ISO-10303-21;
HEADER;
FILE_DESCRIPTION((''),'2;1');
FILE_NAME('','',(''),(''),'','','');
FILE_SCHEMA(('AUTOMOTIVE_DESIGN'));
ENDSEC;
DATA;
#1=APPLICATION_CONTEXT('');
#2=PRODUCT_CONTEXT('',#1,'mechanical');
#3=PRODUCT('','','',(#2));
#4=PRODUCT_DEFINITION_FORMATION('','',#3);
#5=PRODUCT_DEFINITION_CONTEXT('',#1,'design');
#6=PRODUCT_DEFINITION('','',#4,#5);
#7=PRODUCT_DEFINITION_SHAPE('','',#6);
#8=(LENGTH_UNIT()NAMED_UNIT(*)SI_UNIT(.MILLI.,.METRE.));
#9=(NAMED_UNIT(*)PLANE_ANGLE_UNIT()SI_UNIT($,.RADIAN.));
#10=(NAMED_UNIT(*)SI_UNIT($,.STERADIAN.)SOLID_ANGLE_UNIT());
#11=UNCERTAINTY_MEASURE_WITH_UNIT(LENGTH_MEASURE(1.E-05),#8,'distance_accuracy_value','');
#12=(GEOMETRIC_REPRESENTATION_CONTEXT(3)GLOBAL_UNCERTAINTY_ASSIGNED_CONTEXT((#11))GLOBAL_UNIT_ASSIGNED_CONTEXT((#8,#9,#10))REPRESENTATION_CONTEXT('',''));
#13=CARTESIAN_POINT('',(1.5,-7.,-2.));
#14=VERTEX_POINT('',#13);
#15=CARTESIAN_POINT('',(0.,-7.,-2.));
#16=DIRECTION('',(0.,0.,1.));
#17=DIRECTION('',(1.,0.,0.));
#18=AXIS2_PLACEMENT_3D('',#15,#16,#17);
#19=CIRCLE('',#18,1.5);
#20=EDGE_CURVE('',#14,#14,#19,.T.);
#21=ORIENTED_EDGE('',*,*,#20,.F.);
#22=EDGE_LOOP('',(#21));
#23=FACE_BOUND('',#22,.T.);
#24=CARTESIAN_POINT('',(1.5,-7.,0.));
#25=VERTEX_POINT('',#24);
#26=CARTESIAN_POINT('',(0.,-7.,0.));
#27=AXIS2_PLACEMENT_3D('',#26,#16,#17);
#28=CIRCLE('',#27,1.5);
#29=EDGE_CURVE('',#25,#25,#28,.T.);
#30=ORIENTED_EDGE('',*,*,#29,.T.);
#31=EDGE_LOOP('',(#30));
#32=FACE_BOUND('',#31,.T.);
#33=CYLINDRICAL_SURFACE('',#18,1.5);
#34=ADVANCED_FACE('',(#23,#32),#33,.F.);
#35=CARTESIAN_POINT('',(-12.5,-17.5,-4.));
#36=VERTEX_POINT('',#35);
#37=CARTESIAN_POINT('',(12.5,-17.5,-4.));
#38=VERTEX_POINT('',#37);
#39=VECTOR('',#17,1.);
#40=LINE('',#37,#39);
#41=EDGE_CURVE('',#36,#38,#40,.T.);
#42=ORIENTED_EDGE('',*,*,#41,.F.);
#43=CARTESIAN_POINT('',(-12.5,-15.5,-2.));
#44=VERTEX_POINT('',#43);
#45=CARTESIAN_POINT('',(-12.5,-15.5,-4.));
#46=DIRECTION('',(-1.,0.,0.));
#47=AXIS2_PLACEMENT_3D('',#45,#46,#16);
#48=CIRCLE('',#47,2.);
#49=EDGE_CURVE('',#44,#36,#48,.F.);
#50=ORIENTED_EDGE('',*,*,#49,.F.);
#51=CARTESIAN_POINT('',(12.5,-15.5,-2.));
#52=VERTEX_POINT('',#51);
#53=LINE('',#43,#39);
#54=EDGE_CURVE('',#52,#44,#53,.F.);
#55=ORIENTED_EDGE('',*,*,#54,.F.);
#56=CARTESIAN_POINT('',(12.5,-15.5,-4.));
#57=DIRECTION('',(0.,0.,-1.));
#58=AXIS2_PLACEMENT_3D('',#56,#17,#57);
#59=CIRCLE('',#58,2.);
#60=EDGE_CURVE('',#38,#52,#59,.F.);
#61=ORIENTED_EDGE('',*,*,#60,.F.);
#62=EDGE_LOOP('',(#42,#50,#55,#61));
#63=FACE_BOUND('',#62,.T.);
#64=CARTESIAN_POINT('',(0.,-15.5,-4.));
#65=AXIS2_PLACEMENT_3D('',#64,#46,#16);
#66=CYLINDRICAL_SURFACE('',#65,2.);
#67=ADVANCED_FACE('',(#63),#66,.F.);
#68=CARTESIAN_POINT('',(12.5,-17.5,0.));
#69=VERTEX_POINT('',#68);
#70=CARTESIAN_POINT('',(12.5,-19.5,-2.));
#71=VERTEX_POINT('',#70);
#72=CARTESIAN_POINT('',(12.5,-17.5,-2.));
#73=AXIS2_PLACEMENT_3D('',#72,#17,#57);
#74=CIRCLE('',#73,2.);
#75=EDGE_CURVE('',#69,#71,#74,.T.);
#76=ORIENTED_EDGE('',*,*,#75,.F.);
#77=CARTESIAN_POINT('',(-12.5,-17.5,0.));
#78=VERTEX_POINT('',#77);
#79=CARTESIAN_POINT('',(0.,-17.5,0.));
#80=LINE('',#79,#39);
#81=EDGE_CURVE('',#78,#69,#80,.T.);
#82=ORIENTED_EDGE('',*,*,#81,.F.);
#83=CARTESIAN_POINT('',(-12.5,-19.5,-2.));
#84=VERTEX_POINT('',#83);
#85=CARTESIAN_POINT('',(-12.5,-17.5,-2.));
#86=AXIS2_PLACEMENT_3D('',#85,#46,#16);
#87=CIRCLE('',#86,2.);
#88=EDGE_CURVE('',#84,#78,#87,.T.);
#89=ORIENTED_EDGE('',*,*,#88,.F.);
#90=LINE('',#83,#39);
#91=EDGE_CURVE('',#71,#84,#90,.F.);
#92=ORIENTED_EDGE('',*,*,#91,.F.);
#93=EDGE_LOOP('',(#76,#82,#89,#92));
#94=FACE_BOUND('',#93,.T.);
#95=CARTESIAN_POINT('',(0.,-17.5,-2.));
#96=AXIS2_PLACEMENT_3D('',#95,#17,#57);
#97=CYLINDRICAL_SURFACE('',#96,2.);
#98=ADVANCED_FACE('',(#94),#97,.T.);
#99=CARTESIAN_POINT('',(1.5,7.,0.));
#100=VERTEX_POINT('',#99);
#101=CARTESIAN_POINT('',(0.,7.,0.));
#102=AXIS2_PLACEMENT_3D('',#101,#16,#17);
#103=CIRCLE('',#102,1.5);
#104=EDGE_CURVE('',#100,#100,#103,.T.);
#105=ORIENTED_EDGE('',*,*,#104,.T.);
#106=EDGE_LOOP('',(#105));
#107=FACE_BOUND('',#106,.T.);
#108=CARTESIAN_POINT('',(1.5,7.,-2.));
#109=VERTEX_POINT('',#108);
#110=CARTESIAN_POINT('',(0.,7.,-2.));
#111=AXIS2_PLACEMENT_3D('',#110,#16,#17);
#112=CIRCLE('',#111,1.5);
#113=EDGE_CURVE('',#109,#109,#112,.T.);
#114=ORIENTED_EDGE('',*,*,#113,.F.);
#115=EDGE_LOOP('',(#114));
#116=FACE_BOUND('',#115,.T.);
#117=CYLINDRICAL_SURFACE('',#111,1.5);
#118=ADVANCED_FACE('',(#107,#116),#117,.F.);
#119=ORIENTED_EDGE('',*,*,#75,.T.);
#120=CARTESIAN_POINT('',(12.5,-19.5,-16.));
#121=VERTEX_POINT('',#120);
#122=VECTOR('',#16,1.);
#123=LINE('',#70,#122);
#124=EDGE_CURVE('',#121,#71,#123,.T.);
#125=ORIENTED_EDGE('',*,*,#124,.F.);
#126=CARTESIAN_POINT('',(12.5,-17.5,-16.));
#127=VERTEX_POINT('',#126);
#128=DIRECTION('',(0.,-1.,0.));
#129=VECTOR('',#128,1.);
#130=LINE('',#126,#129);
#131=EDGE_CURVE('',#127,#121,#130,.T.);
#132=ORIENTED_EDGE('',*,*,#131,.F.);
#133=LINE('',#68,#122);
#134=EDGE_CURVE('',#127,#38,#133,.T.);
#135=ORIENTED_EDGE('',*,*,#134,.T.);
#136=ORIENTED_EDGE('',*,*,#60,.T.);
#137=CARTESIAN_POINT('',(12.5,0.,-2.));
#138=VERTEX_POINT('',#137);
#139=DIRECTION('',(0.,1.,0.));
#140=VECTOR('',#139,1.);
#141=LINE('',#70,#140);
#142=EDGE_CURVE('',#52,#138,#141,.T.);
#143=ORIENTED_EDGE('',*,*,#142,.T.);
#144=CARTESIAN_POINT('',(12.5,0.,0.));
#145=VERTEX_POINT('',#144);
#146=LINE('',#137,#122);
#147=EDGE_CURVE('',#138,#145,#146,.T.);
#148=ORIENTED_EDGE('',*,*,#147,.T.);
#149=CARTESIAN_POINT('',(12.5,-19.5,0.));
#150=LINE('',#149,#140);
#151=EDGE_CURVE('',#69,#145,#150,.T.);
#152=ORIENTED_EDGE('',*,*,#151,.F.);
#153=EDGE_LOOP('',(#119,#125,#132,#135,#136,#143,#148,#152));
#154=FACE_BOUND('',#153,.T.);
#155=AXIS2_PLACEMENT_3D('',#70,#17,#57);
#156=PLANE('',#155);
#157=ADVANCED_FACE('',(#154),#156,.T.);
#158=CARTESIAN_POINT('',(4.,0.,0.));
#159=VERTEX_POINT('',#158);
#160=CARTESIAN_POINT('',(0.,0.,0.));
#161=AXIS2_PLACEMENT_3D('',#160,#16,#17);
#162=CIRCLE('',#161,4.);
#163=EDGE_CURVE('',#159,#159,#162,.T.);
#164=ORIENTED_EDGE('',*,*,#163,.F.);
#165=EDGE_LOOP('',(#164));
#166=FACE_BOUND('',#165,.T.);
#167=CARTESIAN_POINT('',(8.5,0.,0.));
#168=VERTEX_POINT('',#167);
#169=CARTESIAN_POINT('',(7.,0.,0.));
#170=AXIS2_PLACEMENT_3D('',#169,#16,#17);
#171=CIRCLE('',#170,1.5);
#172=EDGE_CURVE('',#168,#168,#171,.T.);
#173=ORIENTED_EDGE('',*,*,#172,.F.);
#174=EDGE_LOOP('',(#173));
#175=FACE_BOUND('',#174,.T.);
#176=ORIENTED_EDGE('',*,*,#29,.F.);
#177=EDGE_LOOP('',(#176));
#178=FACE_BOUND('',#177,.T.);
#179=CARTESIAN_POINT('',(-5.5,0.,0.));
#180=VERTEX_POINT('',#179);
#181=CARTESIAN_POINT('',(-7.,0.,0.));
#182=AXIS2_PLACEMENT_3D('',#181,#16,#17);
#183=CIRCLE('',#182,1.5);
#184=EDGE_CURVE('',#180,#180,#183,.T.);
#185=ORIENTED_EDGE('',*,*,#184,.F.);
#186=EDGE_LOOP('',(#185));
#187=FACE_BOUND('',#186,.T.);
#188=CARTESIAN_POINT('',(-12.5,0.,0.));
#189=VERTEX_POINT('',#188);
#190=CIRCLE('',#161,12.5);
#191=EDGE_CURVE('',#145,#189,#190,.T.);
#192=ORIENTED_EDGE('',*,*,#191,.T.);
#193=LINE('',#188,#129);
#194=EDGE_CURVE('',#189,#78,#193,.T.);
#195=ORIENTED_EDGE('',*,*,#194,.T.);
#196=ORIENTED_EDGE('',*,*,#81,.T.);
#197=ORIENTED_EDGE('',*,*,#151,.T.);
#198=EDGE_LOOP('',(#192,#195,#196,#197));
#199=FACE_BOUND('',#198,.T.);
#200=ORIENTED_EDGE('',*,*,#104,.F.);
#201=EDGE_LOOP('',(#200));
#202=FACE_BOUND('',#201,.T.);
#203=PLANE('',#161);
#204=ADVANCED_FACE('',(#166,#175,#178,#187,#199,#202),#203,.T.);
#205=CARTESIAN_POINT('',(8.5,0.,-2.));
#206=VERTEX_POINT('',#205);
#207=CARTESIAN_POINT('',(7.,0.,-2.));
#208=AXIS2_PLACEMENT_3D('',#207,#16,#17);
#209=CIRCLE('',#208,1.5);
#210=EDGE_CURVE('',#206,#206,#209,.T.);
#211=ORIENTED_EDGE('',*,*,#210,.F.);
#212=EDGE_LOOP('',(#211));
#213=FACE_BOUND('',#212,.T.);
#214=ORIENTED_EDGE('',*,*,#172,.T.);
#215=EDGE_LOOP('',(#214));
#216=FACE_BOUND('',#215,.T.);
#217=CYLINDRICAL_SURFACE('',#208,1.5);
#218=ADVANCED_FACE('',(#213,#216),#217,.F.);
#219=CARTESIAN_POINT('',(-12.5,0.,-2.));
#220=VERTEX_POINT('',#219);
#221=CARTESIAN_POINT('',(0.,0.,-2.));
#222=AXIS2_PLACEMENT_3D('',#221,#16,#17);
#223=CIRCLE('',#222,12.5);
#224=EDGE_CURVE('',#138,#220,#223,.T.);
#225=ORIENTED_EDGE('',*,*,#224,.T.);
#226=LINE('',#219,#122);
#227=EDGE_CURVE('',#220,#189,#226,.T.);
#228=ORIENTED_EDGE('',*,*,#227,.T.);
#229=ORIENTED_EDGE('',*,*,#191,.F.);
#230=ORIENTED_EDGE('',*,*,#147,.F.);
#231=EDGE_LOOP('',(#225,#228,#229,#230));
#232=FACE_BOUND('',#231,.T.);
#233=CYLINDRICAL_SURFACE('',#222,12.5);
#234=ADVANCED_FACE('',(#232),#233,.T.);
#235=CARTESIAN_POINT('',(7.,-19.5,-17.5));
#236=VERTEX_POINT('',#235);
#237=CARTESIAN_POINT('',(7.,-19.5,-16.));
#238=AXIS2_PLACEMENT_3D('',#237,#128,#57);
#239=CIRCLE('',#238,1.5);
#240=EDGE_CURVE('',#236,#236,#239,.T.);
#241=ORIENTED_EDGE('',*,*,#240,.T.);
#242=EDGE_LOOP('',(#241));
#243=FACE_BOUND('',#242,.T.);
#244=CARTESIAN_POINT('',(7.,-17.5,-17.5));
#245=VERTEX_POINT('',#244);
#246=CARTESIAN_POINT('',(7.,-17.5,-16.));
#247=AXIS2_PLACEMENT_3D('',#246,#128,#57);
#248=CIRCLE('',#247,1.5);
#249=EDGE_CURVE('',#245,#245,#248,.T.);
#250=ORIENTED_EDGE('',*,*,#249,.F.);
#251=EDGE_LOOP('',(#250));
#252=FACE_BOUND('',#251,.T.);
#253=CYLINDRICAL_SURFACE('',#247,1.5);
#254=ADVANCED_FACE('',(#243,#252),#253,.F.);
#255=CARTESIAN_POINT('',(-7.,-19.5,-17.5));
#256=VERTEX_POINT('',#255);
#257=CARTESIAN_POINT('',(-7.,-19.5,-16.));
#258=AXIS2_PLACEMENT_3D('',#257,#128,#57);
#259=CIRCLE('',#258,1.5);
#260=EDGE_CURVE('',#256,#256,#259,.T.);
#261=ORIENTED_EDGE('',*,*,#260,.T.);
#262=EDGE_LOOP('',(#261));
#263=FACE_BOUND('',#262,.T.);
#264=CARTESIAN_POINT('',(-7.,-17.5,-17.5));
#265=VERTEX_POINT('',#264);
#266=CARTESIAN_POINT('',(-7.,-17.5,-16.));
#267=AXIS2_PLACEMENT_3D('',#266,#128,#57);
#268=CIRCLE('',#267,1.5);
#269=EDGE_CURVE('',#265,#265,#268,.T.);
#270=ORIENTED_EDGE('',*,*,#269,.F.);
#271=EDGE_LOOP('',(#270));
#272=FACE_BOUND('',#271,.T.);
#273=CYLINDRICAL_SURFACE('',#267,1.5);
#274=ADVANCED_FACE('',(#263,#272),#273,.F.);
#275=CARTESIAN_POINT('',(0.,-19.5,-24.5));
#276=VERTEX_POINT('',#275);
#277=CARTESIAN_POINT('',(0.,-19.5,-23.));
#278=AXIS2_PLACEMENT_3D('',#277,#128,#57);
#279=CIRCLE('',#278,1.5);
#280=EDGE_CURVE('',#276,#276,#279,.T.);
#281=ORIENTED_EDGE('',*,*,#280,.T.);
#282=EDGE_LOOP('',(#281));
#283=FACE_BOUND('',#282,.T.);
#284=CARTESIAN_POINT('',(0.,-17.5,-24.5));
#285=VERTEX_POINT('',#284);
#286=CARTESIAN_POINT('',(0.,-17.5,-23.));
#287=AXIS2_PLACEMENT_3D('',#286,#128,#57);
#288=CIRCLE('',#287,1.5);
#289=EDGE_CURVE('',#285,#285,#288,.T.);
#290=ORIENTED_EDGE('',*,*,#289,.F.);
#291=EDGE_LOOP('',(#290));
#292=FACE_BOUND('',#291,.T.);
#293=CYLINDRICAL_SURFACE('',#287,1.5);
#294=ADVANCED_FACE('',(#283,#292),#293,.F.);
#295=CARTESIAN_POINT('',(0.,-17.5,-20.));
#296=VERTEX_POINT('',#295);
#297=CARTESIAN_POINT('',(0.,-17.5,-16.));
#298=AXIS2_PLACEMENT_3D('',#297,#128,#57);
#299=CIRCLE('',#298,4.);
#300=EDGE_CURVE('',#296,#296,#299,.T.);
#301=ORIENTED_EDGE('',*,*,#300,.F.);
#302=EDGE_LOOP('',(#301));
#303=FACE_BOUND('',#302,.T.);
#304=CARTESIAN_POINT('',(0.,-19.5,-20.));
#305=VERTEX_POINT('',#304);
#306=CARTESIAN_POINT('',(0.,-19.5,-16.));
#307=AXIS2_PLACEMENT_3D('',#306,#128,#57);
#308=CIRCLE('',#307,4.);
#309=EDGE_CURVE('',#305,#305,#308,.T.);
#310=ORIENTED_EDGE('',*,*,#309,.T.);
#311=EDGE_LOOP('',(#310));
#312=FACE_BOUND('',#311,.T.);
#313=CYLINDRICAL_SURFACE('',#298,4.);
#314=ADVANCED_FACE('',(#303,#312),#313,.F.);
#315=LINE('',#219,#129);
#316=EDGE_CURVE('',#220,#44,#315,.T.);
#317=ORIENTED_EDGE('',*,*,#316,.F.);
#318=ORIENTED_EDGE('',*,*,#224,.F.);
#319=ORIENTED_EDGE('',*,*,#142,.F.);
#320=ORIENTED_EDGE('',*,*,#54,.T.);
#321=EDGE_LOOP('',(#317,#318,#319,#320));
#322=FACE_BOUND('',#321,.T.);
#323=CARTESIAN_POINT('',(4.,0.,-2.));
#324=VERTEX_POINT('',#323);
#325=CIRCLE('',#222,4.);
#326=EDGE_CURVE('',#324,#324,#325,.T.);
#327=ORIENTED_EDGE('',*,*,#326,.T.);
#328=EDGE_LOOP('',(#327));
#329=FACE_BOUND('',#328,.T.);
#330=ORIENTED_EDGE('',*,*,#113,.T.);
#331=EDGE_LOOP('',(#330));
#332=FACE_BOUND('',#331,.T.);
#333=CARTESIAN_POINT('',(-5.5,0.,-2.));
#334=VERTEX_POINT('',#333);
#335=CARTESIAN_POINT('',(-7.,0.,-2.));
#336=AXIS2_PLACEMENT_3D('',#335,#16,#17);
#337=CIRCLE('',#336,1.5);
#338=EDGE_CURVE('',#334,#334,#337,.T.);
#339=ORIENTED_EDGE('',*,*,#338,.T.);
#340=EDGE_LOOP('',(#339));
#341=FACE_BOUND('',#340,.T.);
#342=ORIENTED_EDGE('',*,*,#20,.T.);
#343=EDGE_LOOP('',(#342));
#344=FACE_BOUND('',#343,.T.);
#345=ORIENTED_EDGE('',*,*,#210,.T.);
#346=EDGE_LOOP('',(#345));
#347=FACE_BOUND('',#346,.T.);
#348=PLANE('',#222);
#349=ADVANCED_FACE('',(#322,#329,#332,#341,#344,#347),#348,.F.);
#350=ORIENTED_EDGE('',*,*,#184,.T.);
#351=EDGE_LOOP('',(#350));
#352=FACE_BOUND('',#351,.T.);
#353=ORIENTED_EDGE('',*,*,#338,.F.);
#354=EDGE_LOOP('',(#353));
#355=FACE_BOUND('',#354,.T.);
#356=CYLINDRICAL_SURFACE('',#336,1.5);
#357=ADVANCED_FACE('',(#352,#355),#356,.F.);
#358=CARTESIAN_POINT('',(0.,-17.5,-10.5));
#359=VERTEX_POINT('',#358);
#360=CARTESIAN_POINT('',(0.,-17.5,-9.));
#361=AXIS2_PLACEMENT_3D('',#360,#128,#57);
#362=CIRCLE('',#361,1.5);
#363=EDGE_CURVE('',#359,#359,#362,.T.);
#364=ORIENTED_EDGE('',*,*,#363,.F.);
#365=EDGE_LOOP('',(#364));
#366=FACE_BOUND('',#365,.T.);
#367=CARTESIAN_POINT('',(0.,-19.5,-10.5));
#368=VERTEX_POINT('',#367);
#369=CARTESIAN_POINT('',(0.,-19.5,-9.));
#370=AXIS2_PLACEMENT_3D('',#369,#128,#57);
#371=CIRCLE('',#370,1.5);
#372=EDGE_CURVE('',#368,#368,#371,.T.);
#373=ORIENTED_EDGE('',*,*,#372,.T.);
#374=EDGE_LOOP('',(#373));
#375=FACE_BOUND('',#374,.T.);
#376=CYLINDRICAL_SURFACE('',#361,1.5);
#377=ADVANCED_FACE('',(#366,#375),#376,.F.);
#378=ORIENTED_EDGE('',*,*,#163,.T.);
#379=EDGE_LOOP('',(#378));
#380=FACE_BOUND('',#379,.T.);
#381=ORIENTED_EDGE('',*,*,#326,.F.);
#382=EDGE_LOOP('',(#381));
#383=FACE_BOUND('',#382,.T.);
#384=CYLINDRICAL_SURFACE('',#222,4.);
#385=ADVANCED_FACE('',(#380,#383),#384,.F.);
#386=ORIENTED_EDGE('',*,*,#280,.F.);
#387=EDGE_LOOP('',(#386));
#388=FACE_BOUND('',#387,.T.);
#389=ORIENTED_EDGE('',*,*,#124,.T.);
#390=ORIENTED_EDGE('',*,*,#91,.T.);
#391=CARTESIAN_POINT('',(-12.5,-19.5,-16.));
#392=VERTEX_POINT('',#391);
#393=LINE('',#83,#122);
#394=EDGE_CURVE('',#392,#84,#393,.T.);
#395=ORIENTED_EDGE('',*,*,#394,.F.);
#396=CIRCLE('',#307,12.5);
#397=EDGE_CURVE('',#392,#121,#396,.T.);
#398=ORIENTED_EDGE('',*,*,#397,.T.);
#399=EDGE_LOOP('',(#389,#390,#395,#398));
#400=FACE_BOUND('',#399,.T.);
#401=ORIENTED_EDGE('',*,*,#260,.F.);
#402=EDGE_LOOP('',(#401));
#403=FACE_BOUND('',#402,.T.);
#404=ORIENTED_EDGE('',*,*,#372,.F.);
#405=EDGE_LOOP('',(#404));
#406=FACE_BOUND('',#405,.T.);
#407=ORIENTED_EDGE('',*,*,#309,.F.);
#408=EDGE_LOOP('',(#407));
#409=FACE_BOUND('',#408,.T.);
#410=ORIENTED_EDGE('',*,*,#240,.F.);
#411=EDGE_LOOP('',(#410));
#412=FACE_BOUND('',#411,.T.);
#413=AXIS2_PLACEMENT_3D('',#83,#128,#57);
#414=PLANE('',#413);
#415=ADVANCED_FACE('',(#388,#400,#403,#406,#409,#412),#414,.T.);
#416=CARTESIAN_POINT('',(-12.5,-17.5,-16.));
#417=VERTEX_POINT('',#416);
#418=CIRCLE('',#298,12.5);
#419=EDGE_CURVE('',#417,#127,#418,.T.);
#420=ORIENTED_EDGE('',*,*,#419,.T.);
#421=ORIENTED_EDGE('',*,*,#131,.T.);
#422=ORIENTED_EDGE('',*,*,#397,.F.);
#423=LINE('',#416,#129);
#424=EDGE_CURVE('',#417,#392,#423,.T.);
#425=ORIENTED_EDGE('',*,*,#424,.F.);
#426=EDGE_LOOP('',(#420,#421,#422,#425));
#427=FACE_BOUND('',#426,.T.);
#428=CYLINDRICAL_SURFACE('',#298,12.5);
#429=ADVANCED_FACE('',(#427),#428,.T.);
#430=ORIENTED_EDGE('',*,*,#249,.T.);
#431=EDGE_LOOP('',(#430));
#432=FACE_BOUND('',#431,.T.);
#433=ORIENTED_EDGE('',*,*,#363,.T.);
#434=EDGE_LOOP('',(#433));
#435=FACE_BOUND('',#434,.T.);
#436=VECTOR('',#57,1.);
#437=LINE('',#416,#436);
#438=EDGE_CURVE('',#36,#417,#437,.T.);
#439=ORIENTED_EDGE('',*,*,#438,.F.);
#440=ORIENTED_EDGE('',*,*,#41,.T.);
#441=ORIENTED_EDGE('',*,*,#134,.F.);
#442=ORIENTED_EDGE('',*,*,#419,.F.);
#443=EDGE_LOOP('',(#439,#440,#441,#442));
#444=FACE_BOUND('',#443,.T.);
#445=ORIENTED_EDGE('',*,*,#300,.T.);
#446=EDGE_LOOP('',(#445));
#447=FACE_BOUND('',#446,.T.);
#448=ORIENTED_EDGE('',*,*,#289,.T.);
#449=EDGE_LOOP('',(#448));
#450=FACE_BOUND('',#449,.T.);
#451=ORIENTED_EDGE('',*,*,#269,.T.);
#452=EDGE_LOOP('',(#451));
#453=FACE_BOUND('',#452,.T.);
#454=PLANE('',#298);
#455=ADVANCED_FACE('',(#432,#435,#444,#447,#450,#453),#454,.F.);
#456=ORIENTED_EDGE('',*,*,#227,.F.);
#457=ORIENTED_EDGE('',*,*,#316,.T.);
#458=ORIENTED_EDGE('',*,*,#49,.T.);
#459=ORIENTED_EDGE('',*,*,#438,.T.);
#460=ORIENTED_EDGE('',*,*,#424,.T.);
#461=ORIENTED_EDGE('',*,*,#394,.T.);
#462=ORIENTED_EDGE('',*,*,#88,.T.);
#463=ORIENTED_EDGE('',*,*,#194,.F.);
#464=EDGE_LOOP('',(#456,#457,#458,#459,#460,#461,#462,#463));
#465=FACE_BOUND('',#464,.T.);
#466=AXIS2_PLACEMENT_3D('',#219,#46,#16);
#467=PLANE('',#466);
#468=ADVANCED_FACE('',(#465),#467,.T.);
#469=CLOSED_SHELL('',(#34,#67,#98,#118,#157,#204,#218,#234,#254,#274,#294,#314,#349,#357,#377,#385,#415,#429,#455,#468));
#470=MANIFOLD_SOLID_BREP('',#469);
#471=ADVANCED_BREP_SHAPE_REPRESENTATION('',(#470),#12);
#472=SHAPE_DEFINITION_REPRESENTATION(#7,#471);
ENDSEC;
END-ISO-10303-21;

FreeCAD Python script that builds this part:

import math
import FreeCAD as App
import Part
import Sketcher
Q = App.Units.Quantity


def edges_at(feature, points):
    """Names of the edges that pass closest to the given points."""
    edges = feature.Shape.Edges
    near = lambda p: min(range(len(edges)), key=lambda i: edges[i].distToShape(Part.Vertex(*p))[0])
    return sorted({f"Edge{near(p) + 1}" for p in points})

doc = App.newDocument("Part")
body = doc.addObject("PartDesign::Body", "Body")

# Sketch on XY plane
sketch1 = body.newObject("Sketcher::SketchObject", "Sketch")
sketch1.AttachmentSupport = (doc.getObject("XY_Plane"), [""])
sketch1.MapMode = "FlatFace"
sketch1.addGeometry([
    Part.LineSegment(App.Vector(-12.5, 0, 0), App.Vector(-12.5, -19.5, 0)),  # 0
    Part.LineSegment(App.Vector(-12.5, -19.5, 0), App.Vector(12.5, -19.5, 0)),  # 1
    Part.LineSegment(App.Vector(12.5, -19.5, 0), App.Vector(12.5, 0, 0)),  # 2
    Part.ArcOfCircle(Part.Circle(App.Vector(0, 0, 0), App.Vector(0, 0, 1), 12.5), math.radians(0), math.radians(180)),  # 3
    Part.Circle(App.Vector(0, -7, 0), App.Vector(0, 0, 1), 1.5),  # 4
    Part.Circle(App.Vector(-7, 0, 0), App.Vector(0, 0, 1), 1.5),  # 5
    Part.Circle(App.Vector(0, 0, 0), App.Vector(0, 0, 1), 4),  # 6
    Part.Circle(App.Vector(7, 0, 0), App.Vector(0, 0, 1), 1.5),  # 7
    Part.Circle(App.Vector(0, 7, 0), App.Vector(0, 0, 1), 1.5),  # 8
], False)
sketch1.addConstraint([
    Sketcher.Constraint("Coincident", 0, 2, 1, 1),
    Sketcher.Constraint("Coincident", 1, 2, 2, 1),
    Sketcher.Constraint("Tangent", 2, 2, 3, 1),
    Sketcher.Constraint("Tangent", 3, 2, 0, 1),
    Sketcher.Constraint("Vertical", 0),
    Sketcher.Constraint("Horizontal", 1),
    Sketcher.Constraint("Vertical", 2),
    Sketcher.Constraint("Coincident", 3, 3, -1, 1),
    Sketcher.Constraint("Coincident", 6, 3, -1, 1),
    Sketcher.Constraint("Equal", 4, 5),
    Sketcher.Constraint("Equal", 5, 7),
    Sketcher.Constraint("Equal", 7, 8),
    Sketcher.Constraint("Symmetric", 5, 3, 7, 3, -1, 1),
    Sketcher.Constraint("Symmetric", 4, 3, 8, 3, -1, 1),
    Sketcher.Constraint("PointOnObject", 4, 3, -2),
    Sketcher.Constraint("PointOnObject", 5, 3, -1),
    Sketcher.Constraint("Diameter", 4, Q("3 mm")),
    Sketcher.Constraint("Diameter", 6, Q("8 mm")),
    Sketcher.Constraint("Radius", 3, Q("12.5 mm")),
    Sketcher.Constraint("DistanceY", 0, 2, 0, 1, Q("19.5 mm")),
    Sketcher.Constraint("DistanceY", 4, 3, -1, 1, Q("7 mm")),
    Sketcher.Constraint("DistanceX", 5, 3, -1, 1, Q("7 mm")),
])
pad1 = body.newObject("PartDesign::Pad", "Pad")
pad1.Profile = sketch1
pad1.Length = 2
pad1.Reversed = True

# Sketch on XZ plane
sketch2 = body.newObject("Sketcher::SketchObject", "Sketch001")
sketch2.AttachmentSupport = (doc.getObject("XZ_Plane"), [""])
sketch2.MapMode = "FlatFace"
sketch2.AttachmentOffset = App.Placement(App.Vector(0, 0, 19.5), App.Rotation())
sketch2.addGeometry([
    Part.LineSegment(App.Vector(-12.5, 0, 0), App.Vector(-12.5, -16, 0)),  # 0
    Part.ArcOfCircle(Part.Circle(App.Vector(0, -16, 0), App.Vector(0, 0, 1), 12.5), math.radians(180), math.radians(360)),  # 1
    Part.LineSegment(App.Vector(12.5, -16, 0), App.Vector(12.5, 0, 0)),  # 2
    Part.LineSegment(App.Vector(12.5, 0, 0), App.Vector(-12.5, 0, 0)),  # 3
    Part.Circle(App.Vector(0, -23, 0), App.Vector(0, 0, 1), 1.5),  # 4
    Part.Circle(App.Vector(7, -16, 0), App.Vector(0, 0, 1), 1.5),  # 5
    Part.Circle(App.Vector(0, -16, 0), App.Vector(0, 0, 1), 4),  # 6
    Part.Circle(App.Vector(-7, -16, 0), App.Vector(0, 0, 1), 1.5),  # 7
    Part.Circle(App.Vector(0, -9, 0), App.Vector(0, 0, 1), 1.5),  # 8
], False)
sketch2.addConstraint([
    Sketcher.Constraint("Tangent", 0, 2, 1, 1),
    Sketcher.Constraint("Tangent", 1, 2, 2, 1),
    Sketcher.Constraint("Coincident", 2, 2, 3, 1),
    Sketcher.Constraint("Coincident", 3, 2, 0, 1),
    Sketcher.Constraint("Vertical", 0),
    Sketcher.Constraint("Vertical", 2),
    Sketcher.Constraint("Horizontal", 3),
    Sketcher.Constraint("Coincident", 6, 3, 1, 3),
    Sketcher.Constraint("Equal", 4, 5),
    Sketcher.Constraint("Equal", 5, 7),
    Sketcher.Constraint("Equal", 7, 8),
    Sketcher.Constraint("Symmetric", 2, 2, 3, 2, -1, 1),
    Sketcher.Constraint("Symmetric", 5, 3, 7, 3, -2),
    Sketcher.Constraint("PointOnObject", 4, 3, -2),
    Sketcher.Constraint("PointOnObject", 8, 3, -2),
    Sketcher.Constraint("Horizontal", 1, 3, 5, 3),
    Sketcher.Constraint("Diameter", 4, Q("3 mm")),
    Sketcher.Constraint("Diameter", 6, Q("8 mm")),
    Sketcher.Constraint("Radius", 1, Q("12.5 mm")),
    Sketcher.Constraint("DistanceY", 0, 2, 0, 1, Q("16 mm")),
    Sketcher.Constraint("DistanceY", 4, 3, -1, 1, Q("23 mm")),
    Sketcher.Constraint("DistanceX", -1, 1, 5, 3, Q("7 mm")),
    Sketcher.Constraint("DistanceY", 8, 3, -1, 1, Q("9 mm")),
])
pad2 = body.newObject("PartDesign::Pad", "Pad001")
pad2.Profile = sketch2
pad2.Length = 2
pad2.Reversed = True
doc.recompute()

fillet = body.newObject("PartDesign::Fillet", "Fillet")
fillet.Base = (pad2, edges_at(pad2, [(0, -17.5, -2), (0, -19.5, 0)]))
fillet.Radius = 2

doc.recompute()
